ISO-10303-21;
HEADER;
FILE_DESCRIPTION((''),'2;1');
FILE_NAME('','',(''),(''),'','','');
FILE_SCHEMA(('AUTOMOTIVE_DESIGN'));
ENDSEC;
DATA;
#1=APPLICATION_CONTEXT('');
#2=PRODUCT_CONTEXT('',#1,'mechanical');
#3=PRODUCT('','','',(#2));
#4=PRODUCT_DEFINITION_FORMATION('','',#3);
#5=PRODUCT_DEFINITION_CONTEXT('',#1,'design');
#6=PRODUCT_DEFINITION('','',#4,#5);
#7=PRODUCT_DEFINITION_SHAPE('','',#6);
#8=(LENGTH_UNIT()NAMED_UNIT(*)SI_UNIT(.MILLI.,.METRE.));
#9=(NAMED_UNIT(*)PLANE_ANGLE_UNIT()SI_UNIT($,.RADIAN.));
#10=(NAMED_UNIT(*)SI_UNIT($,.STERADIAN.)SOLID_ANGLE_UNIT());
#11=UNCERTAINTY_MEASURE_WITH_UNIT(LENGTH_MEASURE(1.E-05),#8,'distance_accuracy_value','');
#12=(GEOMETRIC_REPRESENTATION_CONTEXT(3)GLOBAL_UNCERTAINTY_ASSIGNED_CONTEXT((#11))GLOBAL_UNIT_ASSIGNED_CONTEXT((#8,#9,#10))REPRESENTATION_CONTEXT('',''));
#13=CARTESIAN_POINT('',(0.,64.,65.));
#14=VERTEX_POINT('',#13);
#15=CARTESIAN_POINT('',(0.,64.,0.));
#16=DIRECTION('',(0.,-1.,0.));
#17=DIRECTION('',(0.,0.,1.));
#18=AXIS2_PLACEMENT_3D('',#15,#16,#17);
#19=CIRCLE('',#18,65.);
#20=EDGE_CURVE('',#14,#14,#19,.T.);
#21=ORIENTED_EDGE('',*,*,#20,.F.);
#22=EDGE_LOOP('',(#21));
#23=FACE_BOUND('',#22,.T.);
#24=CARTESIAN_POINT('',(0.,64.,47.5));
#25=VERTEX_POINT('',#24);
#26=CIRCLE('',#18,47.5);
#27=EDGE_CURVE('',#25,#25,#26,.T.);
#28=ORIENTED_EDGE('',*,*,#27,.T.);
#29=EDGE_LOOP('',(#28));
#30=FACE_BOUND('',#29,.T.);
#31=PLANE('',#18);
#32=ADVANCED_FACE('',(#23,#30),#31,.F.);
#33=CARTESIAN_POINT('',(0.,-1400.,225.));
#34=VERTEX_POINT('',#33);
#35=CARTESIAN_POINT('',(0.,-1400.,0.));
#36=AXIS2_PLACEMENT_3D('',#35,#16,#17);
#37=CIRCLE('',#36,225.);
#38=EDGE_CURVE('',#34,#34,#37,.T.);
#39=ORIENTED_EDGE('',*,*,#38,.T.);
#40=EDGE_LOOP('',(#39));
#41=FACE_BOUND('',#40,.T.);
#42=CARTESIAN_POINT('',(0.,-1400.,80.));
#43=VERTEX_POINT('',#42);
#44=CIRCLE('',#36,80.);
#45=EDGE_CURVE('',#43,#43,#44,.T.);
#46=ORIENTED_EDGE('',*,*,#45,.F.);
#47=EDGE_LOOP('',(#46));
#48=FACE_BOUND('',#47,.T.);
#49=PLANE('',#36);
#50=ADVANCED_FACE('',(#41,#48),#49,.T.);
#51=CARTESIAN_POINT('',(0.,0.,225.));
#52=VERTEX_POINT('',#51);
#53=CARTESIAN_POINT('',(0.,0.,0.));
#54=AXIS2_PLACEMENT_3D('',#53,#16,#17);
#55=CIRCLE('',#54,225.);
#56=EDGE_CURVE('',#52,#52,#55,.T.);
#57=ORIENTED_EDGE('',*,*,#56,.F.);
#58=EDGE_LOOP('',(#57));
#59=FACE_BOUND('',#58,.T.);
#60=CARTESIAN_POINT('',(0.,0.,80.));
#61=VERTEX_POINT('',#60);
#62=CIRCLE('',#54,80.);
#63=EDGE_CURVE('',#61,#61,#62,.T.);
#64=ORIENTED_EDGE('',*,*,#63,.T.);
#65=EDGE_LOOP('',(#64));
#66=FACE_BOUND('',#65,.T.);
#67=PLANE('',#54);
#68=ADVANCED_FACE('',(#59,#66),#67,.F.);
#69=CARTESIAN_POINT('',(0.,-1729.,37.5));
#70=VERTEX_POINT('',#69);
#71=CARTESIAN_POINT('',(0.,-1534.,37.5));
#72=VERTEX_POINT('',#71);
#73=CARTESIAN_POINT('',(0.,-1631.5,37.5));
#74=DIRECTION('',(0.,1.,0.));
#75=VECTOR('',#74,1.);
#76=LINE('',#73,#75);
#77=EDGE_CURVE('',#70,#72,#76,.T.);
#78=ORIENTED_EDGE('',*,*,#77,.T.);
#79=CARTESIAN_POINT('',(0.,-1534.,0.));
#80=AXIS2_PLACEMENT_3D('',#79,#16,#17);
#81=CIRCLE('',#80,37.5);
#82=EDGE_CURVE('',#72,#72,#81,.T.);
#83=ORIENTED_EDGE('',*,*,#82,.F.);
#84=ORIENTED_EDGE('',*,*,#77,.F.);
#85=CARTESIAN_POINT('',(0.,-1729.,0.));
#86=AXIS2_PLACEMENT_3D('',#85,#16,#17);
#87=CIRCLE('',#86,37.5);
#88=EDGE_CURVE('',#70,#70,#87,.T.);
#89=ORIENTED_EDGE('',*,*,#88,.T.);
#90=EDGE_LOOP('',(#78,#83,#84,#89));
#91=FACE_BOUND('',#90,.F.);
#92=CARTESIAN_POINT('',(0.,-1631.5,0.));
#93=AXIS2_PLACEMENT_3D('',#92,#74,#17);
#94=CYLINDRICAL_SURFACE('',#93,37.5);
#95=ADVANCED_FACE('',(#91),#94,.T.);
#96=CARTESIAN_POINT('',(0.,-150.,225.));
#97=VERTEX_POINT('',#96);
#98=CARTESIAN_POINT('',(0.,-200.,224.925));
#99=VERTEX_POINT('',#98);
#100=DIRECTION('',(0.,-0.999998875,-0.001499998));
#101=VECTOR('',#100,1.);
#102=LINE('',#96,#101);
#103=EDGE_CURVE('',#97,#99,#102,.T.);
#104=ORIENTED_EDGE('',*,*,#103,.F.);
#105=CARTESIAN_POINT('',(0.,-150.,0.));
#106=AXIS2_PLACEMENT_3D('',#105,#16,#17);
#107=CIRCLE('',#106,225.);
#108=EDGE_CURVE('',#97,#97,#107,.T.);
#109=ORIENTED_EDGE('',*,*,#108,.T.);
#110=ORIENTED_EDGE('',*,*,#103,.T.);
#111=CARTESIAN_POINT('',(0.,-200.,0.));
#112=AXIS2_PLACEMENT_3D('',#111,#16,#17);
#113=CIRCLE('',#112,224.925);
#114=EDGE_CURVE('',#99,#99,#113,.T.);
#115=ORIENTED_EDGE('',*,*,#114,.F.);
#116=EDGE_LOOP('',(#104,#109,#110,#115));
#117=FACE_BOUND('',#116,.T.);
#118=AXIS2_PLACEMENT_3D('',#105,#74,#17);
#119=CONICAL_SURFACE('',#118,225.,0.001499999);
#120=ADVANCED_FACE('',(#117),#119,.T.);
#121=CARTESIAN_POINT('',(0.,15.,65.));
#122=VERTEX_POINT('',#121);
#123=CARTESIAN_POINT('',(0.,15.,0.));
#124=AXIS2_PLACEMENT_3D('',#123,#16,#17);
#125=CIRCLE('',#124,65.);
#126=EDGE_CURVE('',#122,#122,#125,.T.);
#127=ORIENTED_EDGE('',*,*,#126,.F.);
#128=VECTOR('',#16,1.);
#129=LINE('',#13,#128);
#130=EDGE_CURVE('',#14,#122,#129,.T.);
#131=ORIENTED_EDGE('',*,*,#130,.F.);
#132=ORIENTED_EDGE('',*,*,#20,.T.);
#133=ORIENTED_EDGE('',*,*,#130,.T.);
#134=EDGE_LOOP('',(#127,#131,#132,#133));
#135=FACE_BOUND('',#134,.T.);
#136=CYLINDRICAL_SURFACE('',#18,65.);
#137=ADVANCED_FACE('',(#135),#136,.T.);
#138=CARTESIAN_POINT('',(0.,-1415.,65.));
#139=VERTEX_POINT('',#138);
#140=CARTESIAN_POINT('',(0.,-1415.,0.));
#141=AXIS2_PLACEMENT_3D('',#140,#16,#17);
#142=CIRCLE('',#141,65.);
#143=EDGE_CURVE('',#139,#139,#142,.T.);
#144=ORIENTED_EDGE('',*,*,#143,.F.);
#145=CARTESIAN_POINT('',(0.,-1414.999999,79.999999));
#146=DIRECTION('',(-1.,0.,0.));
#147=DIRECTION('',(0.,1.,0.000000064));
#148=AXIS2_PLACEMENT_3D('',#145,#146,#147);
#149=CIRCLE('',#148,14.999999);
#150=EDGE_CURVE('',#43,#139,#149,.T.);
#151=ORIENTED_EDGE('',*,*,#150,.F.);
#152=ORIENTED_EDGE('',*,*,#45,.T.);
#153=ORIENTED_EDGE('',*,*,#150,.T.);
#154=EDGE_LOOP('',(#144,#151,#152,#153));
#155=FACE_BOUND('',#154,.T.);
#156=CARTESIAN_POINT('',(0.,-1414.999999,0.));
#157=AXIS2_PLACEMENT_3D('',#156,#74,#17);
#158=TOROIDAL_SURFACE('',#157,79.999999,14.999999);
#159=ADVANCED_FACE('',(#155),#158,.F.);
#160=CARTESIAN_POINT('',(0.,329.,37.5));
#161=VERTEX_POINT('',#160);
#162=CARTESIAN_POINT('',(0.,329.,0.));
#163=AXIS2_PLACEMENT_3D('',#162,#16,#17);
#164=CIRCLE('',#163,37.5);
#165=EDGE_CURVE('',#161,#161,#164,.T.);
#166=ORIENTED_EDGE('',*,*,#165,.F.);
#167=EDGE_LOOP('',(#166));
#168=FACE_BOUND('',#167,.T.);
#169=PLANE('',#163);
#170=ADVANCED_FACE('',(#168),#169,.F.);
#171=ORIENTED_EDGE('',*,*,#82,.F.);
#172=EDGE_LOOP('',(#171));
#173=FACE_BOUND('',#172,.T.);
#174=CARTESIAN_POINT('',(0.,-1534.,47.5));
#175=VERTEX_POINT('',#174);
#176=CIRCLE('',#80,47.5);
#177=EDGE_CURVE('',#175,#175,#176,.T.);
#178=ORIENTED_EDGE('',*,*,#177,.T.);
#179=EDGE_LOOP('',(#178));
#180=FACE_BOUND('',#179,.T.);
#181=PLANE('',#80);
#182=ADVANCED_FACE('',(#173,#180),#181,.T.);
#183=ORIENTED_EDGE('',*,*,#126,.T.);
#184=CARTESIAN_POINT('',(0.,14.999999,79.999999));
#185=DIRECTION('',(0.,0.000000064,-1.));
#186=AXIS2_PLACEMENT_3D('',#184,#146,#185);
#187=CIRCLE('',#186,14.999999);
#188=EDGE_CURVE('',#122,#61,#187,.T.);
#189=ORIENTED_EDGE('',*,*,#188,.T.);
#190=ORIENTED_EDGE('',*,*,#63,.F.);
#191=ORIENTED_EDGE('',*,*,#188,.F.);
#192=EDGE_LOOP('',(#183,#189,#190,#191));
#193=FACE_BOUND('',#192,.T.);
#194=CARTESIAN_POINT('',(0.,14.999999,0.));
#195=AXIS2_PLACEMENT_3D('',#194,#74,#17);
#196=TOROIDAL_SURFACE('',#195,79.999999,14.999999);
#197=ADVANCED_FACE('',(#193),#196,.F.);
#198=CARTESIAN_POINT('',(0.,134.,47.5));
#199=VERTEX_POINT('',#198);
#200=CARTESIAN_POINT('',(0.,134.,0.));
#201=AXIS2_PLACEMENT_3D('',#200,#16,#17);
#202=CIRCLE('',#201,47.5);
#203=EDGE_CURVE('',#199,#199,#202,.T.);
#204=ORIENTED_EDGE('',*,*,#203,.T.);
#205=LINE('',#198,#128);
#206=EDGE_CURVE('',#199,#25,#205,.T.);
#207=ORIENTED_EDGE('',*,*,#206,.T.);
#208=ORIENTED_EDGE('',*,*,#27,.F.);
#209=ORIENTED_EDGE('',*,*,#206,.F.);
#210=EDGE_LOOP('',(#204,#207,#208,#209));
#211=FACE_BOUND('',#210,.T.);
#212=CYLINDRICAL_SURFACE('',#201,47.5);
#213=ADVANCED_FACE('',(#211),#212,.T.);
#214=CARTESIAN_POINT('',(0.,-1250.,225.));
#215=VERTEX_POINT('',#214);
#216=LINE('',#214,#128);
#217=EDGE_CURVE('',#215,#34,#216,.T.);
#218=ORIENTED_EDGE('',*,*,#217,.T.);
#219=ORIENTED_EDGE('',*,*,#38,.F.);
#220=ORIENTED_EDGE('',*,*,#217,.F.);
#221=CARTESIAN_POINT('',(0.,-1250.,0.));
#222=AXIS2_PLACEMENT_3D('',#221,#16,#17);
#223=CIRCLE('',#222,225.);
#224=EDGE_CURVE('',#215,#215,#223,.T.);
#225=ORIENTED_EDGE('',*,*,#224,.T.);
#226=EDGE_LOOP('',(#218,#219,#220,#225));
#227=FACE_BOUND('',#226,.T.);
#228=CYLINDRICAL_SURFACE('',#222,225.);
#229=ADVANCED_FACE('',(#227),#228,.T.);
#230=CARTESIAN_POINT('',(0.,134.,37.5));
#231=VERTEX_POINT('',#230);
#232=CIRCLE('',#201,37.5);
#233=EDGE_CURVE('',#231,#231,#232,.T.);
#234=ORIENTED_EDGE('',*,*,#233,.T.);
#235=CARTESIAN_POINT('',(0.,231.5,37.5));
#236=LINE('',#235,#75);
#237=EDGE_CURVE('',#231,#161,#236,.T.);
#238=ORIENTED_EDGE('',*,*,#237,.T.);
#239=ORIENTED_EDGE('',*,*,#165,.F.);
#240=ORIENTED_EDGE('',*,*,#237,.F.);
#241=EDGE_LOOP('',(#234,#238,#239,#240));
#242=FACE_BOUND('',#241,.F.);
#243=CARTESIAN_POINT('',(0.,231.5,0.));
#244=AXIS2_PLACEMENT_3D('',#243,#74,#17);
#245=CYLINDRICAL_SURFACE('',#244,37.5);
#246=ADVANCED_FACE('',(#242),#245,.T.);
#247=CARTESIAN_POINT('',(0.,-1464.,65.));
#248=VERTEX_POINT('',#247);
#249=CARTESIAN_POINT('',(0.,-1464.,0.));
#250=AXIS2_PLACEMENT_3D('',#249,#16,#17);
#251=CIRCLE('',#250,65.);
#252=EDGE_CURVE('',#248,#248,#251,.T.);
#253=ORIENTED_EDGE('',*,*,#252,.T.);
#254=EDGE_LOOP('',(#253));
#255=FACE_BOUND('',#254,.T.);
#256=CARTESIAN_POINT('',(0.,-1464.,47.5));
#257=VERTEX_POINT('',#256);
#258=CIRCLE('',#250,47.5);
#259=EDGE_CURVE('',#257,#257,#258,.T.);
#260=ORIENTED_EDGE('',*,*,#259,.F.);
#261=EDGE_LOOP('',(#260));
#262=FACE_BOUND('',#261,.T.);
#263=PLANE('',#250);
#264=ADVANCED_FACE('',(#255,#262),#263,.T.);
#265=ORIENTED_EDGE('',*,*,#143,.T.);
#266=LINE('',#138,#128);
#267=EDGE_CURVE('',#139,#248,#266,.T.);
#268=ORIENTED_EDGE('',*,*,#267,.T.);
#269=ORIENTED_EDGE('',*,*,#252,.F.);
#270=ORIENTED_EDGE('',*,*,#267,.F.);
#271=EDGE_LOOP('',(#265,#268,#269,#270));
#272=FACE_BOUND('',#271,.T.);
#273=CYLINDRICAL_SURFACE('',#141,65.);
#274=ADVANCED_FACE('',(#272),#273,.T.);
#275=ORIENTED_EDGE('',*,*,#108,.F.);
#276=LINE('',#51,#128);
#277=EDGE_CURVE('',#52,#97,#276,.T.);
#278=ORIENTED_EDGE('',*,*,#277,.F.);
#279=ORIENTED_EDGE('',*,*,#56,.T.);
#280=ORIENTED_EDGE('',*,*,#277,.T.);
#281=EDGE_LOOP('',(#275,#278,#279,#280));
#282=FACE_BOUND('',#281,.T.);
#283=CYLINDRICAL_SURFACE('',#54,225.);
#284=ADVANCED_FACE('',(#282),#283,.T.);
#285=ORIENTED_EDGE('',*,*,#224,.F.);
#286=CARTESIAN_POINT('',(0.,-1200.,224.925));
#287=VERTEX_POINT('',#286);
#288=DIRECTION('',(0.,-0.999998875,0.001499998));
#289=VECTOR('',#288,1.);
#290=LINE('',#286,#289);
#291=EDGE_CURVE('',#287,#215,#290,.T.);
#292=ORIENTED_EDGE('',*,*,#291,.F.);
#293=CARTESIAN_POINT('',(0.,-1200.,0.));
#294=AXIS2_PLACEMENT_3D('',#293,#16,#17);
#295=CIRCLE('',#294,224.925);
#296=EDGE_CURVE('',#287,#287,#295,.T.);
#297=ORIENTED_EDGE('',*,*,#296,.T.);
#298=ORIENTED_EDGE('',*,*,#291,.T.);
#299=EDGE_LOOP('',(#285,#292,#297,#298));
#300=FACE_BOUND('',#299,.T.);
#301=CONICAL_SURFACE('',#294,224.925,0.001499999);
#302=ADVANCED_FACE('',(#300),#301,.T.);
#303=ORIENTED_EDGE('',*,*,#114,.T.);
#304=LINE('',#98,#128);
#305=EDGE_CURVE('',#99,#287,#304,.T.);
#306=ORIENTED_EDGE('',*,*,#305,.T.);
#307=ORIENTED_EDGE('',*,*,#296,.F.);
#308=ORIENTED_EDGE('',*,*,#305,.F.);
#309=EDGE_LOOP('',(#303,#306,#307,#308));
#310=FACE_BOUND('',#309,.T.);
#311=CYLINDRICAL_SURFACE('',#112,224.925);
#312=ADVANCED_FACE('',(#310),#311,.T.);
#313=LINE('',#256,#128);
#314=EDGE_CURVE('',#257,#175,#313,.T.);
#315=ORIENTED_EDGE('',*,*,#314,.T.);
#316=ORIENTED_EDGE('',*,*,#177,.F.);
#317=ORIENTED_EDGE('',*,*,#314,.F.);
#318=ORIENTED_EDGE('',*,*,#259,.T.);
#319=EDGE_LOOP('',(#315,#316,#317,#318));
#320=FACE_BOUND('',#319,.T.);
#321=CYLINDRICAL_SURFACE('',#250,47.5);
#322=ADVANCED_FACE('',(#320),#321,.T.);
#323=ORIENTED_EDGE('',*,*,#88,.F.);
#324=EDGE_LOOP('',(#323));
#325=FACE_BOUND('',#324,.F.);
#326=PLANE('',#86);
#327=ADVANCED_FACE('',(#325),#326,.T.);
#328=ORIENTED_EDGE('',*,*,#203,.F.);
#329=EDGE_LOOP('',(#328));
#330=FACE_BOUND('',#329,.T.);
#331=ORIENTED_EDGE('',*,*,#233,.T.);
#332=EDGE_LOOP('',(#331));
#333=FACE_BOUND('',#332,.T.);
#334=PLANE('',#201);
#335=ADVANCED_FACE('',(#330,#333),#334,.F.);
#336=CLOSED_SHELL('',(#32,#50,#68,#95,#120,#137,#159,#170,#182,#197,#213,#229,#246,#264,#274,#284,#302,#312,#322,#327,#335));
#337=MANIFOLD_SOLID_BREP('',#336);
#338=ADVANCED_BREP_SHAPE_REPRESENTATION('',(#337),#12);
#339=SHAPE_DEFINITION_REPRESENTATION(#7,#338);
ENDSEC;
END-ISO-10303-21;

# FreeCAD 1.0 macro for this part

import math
import FreeCAD as App
import Part
import Sketcher

V = App.Vector

doc = App.newDocument("Part")
body = doc.addObject("PartDesign::Body", "Body")

# Sketch on YZ plane
sketch1 = body.newObject("Sketcher::SketchObject", "Sketch")
sketch1.AttachmentSupport = (doc.getObject("YZ_Plane"), [""])
sketch1.MapMode = "FlatFace"
sketch1.addGeometry([
    Part.ArcOfCircle(Part.Circle(V(15, 80, 0), V(0, 0, 1), 15), math.radians(180), math.radians(270)),  # 0
    Part.LineSegment(V(0, 80, 0), V(0, 225, 0)),  # 1
    Part.LineSegment(V(0, 225, 0), V(-150, 225, 0)),  # 2
    Part.LineSegment(V(-150, 225, 0), V(-200, 225, 0)),  # 3
    Part.LineSegment(V(-200, 225, 0), V(-1200, 225, 0)),  # 4
    Part.LineSegment(V(-1200, 225, 0), V(-1250, 225, 0)),  # 5
    Part.LineSegment(V(-1250, 225, 0), V(-1400, 225, 0)),  # 6
    Part.LineSegment(V(-1400, 225, 0), V(-1400, 80, 0)),  # 7
    Part.ArcOfCircle(Part.Circle(V(-1415, 80, 0), V(0, 0, 1), 15), math.radians(-90), math.radians(0)),  # 8
    Part.LineSegment(V(-1415, 65, 0), V(-1464, 65, 0)),  # 9
    Part.LineSegment(V(-1464, 65, 0), V(-1464, 48, 0)),  # 10
    Part.LineSegment(V(-1464, 48, 0), V(-1534, 48, 0)),  # 11
    Part.LineSegment(V(-1534, 48, 0), V(-1534, 38, 0)),  # 12
    Part.LineSegment(V(-1534, 38, 0), V(-1729, 38, 0)),  # 13
    Part.LineSegment(V(-1729, 38, 0), V(-1729, 0, 0)),  # 14
    Part.LineSegment(V(-1729, 0, 0), V(329, 0, 0)),  # 15
    Part.LineSegment(V(329, 0, 0), V(329, 38, 0)),  # 16
    Part.LineSegment(V(329, 38, 0), V(134, 38, 0)),  # 17
    Part.LineSegment(V(134, 38, 0), V(134, 48, 0)),  # 18
    Part.LineSegment(V(134, 48, 0), V(64, 48, 0)),  # 19
    Part.LineSegment(V(64, 48, 0), V(64, 65, 0)),  # 20
    Part.LineSegment(V(64, 65, 0), V(15, 65, 0)),  # 21
], False)
sketch1.addConstraint([
    Sketcher.Constraint("Tangent", 0, 1, 1, 1),
    Sketcher.Constraint("Coincident", 1, 2, 2, 1),
    Sketcher.Constraint("Coincident", 2, 2, 3, 1),
    Sketcher.Constraint("Coincident", 3, 2, 4, 1),
    Sketcher.Constraint("Coincident", 4, 2, 5, 1),
    Sketcher.Constraint("Coincident", 5, 2, 6, 1),
    Sketcher.Constraint("Coincident", 6, 2, 7, 1),
    Sketcher.Constraint("Tangent", 7, 2, 8, 2),
    Sketcher.Constraint("Tangent", 8, 1, 9, 1),
    Sketcher.Constraint("Coincident", 9, 2, 10, 1),
    Sketcher.Constraint("Coincident", 10, 2, 11, 1),
    Sketcher.Constraint("Coincident", 11, 2, 12, 1),
    Sketcher.Constraint("Coincident", 12, 2, 13, 1),
    Sketcher.Constraint("Coincident", 13, 2, 14, 1),
    Sketcher.Constraint("Coincident", 14, 2, 15, 1),
    Sketcher.Constraint("Coincident", 15, 2, 16, 1),
    Sketcher.Constraint("Coincident", 16, 2, 17, 1),
    Sketcher.Constraint("Coincident", 17, 2, 18, 1),
    Sketcher.Constraint("Coincident", 18, 2, 19, 1),
    Sketcher.Constraint("Coincident", 19, 2, 20, 1),
    Sketcher.Constraint("Coincident", 20, 2, 21, 1),
    Sketcher.Constraint("Tangent", 21, 2, 0, 2),
    Sketcher.Constraint("Vertical", 1),
    Sketcher.Constraint("Horizontal", 2),
    Sketcher.Constraint("Horizontal", 4),
    Sketcher.Constraint("Horizontal", 6),
    Sketcher.Constraint("Vertical", 7),
    Sketcher.Constraint("Horizontal", 9),
    Sketcher.Constraint("Vertical", 10),
    Sketcher.Constraint("Horizontal", 11),
    Sketcher.Constraint("Vertical", 12),
    Sketcher.Constraint("Horizontal", 13),
    Sketcher.Constraint("Vertical", 14),
    Sketcher.Constraint("Horizontal", 15),
    Sketcher.Constraint("Vertical", 16),
    Sketcher.Constraint("Horizontal", 17),
    Sketcher.Constraint("Vertical", 18),
    Sketcher.Constraint("Horizontal", 19),
    Sketcher.Constraint("Vertical", 20),
    Sketcher.Constraint("Horizontal", 21),
    Sketcher.Constraint("Equal", 0, 8),
    Sketcher.Constraint("PointOnObject", 0, 1, -2),
    Sketcher.Constraint("PointOnObject", 14, 2, -1),
    Sketcher.Constraint("Horizontal", 0, 3, 8, 3),
    Sketcher.Constraint("Horizontal", 2, 2, 5, 2),
    Sketcher.Constraint("Horizontal", 13, 2, 16, 2),
    Sketcher.Constraint("Horizontal", 11, 2, 18, 2),
    Sketcher.Constraint("Equal", 2, 6),
    Sketcher.Constraint("Equal", 13, 17),
    Sketcher.Constraint("Equal", 11, 19),
    Sketcher.Constraint("Equal", 9, 21),
    Sketcher.Constraint("Equal", 3, 5),
    Sketcher.Constraint("Radius", 0, 14.999999),
    Sketcher.Constraint("DistanceX", 2, 2, 2, 1, 150.0),
    Sketcher.Constraint("DistanceX", 4, 2, 4, 1, 1000.0),
    Sketcher.Constraint("DistanceX", 9, 2, 9, 1, 49.0),
    Sketcher.Constraint("DistanceX", 11, 2, 11, 1, 70.0),
    Sketcher.Constraint("DistanceX", 13, 2, 13, 1, 195.0),
    Sketcher.Constraint("DistanceX", 15, 1, 15, 2, 2058.0),
    Sketcher.Constraint("DistanceY", 1, 1, 1, 2, 145.0),
    Sketcher.Constraint("DistanceY", 12, 2, 12, 1, 10.0),
    Sketcher.Constraint("DistanceY", 10, 2, 10, 1, 17.5),
    Sketcher.Constraint("DistanceY", 14, 2, 14, 1, 37.5),
    Sketcher.Constraint("DistanceY", -1, 1, 3, 2, 224.925),
])
revolution = body.newObject("PartDesign::Revolution", "Revolution")
revolution.Profile = sketch1
revolution.ReferenceAxis = (sketch1, ["H_Axis"])
revolution.Angle = 360

doc.recompute()
